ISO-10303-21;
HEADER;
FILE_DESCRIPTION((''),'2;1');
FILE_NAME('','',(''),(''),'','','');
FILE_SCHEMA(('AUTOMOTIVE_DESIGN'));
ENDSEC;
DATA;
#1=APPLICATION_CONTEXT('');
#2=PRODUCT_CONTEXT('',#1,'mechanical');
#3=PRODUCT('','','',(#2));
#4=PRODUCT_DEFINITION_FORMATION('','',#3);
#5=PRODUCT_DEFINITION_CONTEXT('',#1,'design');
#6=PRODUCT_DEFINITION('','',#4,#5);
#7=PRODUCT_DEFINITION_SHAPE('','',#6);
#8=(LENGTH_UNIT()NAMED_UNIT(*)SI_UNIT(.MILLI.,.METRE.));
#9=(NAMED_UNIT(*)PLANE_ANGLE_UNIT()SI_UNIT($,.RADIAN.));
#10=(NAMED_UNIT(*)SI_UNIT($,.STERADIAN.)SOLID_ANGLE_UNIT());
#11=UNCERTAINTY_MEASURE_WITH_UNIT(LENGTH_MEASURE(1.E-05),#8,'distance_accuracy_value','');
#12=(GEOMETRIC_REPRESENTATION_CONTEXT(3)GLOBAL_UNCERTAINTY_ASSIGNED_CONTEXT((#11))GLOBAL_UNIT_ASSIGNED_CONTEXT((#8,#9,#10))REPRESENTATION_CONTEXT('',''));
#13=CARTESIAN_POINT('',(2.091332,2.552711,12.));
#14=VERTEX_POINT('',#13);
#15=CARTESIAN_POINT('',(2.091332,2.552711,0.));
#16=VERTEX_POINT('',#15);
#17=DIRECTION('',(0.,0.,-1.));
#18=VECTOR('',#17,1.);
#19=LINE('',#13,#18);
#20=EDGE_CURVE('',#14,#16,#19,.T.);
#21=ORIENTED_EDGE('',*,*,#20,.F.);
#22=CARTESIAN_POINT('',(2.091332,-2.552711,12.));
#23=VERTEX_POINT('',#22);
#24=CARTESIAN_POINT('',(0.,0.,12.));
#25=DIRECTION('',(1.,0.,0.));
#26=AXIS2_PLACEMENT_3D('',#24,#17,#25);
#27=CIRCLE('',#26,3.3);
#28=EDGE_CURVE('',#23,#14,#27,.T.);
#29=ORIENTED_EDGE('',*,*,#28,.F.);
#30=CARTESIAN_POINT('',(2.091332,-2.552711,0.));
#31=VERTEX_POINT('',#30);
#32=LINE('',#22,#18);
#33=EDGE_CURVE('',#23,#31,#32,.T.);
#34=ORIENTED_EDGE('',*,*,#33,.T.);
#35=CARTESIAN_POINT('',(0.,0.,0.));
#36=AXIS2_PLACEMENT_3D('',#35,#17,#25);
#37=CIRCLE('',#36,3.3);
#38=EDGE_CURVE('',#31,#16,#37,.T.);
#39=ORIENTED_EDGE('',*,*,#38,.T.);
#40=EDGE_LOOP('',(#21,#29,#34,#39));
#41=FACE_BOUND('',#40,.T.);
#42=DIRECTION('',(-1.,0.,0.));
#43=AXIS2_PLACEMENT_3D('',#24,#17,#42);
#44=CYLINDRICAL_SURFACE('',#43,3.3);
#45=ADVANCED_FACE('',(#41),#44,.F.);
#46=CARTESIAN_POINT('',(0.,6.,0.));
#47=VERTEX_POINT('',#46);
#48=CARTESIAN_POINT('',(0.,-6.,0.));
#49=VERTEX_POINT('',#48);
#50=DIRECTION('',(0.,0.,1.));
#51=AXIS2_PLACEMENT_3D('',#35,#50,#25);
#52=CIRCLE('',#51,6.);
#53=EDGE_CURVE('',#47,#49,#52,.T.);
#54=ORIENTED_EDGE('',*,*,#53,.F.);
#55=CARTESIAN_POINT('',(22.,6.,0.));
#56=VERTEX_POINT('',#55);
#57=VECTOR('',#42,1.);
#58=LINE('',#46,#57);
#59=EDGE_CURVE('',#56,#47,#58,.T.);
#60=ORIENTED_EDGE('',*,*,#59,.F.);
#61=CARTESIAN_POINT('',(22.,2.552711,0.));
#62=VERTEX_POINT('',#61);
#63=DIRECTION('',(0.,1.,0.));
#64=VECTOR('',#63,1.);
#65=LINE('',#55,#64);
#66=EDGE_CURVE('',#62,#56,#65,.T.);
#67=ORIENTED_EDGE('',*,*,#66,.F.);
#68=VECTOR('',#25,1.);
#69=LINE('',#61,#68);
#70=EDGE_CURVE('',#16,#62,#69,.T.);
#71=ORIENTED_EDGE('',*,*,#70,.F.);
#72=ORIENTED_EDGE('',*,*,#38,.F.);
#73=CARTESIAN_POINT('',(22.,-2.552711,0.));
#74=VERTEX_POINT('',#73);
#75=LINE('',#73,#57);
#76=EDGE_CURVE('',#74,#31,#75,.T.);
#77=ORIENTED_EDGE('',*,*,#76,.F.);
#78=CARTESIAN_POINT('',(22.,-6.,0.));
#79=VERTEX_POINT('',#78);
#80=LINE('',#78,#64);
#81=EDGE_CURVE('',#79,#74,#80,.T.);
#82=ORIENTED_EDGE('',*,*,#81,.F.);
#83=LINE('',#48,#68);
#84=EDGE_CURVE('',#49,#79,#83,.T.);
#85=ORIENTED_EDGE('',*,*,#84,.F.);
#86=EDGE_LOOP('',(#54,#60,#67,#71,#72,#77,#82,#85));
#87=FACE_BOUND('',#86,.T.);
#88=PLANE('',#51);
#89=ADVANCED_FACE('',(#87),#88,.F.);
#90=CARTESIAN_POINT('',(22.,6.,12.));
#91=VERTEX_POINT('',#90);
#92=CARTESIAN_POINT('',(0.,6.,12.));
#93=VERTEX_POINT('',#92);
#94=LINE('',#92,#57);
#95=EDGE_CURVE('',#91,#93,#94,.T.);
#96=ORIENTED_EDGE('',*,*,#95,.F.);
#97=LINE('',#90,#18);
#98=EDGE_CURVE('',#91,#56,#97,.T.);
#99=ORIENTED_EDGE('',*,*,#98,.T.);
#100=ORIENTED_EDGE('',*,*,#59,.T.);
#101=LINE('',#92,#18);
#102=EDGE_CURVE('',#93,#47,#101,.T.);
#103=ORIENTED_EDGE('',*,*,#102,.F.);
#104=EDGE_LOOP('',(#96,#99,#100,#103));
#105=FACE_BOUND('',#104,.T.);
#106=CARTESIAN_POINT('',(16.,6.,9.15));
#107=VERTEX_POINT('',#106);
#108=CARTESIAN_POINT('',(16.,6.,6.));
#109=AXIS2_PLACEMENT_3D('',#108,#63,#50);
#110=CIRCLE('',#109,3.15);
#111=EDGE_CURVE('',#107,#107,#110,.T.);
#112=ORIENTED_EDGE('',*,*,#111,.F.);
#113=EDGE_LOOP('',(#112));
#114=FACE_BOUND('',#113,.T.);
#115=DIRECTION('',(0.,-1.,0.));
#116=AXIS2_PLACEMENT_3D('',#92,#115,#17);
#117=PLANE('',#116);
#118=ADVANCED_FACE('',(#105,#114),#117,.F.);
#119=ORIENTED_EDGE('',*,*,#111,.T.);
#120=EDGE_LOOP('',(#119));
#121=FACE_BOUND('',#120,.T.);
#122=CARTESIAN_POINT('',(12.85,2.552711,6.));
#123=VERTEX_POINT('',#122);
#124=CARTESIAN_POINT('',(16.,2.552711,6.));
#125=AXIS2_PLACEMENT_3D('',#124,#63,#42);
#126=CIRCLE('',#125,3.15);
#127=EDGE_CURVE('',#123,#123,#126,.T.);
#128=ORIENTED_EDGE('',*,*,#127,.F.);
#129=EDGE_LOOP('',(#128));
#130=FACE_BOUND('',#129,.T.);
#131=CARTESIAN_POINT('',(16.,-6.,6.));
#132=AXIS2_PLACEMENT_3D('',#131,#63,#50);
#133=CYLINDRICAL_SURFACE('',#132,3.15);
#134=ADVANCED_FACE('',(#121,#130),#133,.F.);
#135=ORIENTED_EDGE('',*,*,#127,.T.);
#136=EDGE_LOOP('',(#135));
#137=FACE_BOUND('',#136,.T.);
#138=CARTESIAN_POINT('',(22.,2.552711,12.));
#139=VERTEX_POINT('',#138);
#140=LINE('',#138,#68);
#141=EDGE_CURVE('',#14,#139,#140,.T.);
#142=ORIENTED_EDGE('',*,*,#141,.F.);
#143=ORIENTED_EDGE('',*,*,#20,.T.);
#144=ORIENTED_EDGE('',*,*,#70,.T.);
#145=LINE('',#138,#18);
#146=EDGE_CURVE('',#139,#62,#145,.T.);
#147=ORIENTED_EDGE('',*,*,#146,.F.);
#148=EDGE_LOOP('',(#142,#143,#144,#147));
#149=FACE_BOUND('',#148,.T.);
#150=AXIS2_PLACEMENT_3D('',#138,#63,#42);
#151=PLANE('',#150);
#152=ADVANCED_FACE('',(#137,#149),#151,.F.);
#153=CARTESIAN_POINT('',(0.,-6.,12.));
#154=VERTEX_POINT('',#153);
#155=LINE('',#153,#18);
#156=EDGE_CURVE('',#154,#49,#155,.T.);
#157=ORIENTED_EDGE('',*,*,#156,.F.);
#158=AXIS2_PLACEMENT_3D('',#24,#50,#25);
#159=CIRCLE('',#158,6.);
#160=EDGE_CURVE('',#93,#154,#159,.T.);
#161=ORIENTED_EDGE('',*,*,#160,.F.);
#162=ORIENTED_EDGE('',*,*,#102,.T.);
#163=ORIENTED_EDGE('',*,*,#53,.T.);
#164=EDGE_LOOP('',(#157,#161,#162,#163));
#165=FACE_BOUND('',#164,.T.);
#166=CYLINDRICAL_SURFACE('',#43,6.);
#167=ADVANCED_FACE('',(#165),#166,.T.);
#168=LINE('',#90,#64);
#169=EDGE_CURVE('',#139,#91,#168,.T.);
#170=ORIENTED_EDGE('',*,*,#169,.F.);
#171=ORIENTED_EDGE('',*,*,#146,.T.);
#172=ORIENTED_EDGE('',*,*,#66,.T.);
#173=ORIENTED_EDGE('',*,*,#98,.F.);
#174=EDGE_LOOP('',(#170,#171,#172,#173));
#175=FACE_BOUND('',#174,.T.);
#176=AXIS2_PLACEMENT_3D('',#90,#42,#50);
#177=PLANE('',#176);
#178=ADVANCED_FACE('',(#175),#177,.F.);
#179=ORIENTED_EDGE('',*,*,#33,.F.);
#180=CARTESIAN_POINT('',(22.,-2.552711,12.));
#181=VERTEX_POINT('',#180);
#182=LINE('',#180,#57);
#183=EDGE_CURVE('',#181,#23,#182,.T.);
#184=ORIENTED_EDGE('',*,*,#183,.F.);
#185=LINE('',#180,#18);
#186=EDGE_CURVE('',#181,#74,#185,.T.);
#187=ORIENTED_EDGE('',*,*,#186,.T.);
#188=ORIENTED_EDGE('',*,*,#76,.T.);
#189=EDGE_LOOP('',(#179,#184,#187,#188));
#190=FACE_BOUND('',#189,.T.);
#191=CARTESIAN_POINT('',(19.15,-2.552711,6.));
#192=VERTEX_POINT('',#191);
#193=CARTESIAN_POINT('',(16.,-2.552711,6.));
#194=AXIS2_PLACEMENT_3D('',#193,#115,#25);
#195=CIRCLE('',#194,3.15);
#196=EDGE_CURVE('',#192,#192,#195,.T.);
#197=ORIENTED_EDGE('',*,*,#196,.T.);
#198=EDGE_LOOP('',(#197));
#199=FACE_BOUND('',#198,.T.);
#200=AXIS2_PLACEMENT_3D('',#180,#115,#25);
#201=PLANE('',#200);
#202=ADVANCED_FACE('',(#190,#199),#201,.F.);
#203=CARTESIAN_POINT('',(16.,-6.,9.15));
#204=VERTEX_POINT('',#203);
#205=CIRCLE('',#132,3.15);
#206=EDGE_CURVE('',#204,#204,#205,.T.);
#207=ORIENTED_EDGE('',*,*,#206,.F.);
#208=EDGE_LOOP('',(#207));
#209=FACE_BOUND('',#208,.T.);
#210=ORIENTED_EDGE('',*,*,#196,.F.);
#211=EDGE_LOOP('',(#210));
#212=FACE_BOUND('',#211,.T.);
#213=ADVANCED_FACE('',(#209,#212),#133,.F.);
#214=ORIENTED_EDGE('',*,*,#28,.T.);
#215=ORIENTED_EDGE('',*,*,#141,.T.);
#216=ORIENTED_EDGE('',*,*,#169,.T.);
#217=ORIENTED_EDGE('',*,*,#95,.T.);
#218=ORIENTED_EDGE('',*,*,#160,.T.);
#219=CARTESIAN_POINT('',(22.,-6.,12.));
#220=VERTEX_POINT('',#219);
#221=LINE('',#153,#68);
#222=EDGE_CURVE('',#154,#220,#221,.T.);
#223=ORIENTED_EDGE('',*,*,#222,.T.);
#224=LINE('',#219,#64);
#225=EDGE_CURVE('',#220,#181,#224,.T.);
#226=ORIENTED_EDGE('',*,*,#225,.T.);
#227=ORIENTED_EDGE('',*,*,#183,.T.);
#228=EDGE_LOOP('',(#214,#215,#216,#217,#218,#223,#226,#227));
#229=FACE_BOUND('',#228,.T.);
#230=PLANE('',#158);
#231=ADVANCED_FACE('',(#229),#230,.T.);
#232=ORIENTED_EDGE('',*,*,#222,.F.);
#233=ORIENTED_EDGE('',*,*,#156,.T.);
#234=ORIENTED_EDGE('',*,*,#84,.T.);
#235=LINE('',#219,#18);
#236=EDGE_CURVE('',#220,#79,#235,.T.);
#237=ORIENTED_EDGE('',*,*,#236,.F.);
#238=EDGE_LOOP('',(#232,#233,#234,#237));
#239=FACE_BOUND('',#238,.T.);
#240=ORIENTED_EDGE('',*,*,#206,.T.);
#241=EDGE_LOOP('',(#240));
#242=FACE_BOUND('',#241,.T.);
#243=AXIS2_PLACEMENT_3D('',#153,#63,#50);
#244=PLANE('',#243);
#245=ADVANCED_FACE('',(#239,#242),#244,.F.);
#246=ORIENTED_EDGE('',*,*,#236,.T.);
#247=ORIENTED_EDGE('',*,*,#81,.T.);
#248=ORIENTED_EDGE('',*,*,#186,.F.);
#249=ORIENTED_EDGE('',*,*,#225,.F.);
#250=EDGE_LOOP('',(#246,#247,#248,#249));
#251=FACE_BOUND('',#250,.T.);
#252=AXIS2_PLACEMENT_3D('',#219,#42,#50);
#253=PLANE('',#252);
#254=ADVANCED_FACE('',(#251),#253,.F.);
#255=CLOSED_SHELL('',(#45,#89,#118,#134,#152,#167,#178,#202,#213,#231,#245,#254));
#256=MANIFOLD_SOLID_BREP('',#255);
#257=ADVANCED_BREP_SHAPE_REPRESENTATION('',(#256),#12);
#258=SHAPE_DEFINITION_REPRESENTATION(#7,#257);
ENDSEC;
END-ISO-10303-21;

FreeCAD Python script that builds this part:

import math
import FreeCAD as App
import Part
import Sketcher
from FreeCAD import Vector

doc = App.newDocument("Part")
body = doc.addObject("PartDesign::Body", "Body")

# Sketch on XY plane
sketch1 = body.newObject("Sketcher::SketchObject", "Sketch")
sketch1.AttachmentSupport = (doc.getObject("XY_Plane"), [""])
sketch1.MapMode = "FlatFace"
sketch1.addGeometry([
    Part.LineSegment(Vector(22, 6, 0), Vector(0, 6, 0)),  # 0
    Part.ArcOfCircle(Part.Circle(Vector(0, 0, 0), Vector(0, 0, 1), 6), math.radians(90), math.radians(270)),  # 1
    Part.LineSegment(Vector(0, -6, 0), Vector(22, -6, 0)),  # 2
    Part.LineSegment(Vector(22, -6, 0), Vector(22, -2.6, 0)),  # 3
    Part.LineSegment(Vector(22, -2.6, 0), Vector(2.1, -2.6, 0)),  # 4
    Part.ArcOfCircle(Part.Circle(Vector(0, 0, 0), Vector(0, 0, 1), 3.3), math.radians(51), math.radians(309)),  # 5
    Part.LineSegment(Vector(2.1, 2.6, 0), Vector(22, 2.6, 0)),  # 6
    Part.LineSegment(Vector(22, 2.6, 0), Vector(22, 6, 0)),  # 7
], False)
sketch1.addConstraint([
    Sketcher.Constraint("Tangent", 0, 2, 1, 1),
    Sketcher.Constraint("Tangent", 1, 2, 2, 1),
    Sketcher.Constraint("Coincident", 2, 2, 3, 1),
    Sketcher.Constraint("Coincident", 3, 2, 4, 1),
    Sketcher.Constraint("Coincident", 4, 2, 5, 2),
    Sketcher.Constraint("Coincident", 5, 1, 6, 1),
    Sketcher.Constraint("Coincident", 6, 2, 7, 1),
    Sketcher.Constraint("Coincident", 7, 2, 0, 1),
    Sketcher.Constraint("Horizontal", 0),
    Sketcher.Constraint("Horizontal", 2),
    Sketcher.Constraint("Vertical", 3),
    Sketcher.Constraint("Horizontal", 4),
    Sketcher.Constraint("Horizontal", 6),
    Sketcher.Constraint("Vertical", 7),
    Sketcher.Constraint("Coincident", 1, 3, -1, 1),
    Sketcher.Constraint("Coincident", 5, 3, -1, 1),
    Sketcher.Constraint("Symmetric", 3, 2, 6, 2, -1),
    Sketcher.Constraint("Radius", 1, 6.0),
    Sketcher.Constraint("Radius", 5, 3.3),
    Sketcher.Constraint("DistanceX", 0, 2, 0, 1, 22.0),
    Sketcher.Constraint("DistanceX", 4, 2, 4, 1, 19.908668),
])
pad1 = body.newObject("PartDesign::Pad", "Pad")
pad1.Profile = sketch1
pad1.Length = 12

# Sketch on XZ plane
sketch2 = body.newObject("Sketcher::SketchObject", "Sketch001")
sketch2.AttachmentSupport = (doc.getObject("XZ_Plane"), [""])
sketch2.MapMode = "FlatFace"
sketch2.addGeometry(Part.Circle(Vector(16, 6, 0), Vector(0, 0, 1), 3.1), False)
sketch2.addConstraint([
    Sketcher.Constraint("Diameter", 0, 6.3),
    Sketcher.Constraint("DistanceX", -1, 1, 0, 3, 16.0),
    Sketcher.Constraint("DistanceY", -1, 1, 0, 3, 6.0),
])
pocket1 = body.newObject("PartDesign::Pocket", "Pocket")
pocket1.Profile = sketch2
pocket1.Type = "ThroughAll"
pocket1.Midplane = True

doc.recompute()
